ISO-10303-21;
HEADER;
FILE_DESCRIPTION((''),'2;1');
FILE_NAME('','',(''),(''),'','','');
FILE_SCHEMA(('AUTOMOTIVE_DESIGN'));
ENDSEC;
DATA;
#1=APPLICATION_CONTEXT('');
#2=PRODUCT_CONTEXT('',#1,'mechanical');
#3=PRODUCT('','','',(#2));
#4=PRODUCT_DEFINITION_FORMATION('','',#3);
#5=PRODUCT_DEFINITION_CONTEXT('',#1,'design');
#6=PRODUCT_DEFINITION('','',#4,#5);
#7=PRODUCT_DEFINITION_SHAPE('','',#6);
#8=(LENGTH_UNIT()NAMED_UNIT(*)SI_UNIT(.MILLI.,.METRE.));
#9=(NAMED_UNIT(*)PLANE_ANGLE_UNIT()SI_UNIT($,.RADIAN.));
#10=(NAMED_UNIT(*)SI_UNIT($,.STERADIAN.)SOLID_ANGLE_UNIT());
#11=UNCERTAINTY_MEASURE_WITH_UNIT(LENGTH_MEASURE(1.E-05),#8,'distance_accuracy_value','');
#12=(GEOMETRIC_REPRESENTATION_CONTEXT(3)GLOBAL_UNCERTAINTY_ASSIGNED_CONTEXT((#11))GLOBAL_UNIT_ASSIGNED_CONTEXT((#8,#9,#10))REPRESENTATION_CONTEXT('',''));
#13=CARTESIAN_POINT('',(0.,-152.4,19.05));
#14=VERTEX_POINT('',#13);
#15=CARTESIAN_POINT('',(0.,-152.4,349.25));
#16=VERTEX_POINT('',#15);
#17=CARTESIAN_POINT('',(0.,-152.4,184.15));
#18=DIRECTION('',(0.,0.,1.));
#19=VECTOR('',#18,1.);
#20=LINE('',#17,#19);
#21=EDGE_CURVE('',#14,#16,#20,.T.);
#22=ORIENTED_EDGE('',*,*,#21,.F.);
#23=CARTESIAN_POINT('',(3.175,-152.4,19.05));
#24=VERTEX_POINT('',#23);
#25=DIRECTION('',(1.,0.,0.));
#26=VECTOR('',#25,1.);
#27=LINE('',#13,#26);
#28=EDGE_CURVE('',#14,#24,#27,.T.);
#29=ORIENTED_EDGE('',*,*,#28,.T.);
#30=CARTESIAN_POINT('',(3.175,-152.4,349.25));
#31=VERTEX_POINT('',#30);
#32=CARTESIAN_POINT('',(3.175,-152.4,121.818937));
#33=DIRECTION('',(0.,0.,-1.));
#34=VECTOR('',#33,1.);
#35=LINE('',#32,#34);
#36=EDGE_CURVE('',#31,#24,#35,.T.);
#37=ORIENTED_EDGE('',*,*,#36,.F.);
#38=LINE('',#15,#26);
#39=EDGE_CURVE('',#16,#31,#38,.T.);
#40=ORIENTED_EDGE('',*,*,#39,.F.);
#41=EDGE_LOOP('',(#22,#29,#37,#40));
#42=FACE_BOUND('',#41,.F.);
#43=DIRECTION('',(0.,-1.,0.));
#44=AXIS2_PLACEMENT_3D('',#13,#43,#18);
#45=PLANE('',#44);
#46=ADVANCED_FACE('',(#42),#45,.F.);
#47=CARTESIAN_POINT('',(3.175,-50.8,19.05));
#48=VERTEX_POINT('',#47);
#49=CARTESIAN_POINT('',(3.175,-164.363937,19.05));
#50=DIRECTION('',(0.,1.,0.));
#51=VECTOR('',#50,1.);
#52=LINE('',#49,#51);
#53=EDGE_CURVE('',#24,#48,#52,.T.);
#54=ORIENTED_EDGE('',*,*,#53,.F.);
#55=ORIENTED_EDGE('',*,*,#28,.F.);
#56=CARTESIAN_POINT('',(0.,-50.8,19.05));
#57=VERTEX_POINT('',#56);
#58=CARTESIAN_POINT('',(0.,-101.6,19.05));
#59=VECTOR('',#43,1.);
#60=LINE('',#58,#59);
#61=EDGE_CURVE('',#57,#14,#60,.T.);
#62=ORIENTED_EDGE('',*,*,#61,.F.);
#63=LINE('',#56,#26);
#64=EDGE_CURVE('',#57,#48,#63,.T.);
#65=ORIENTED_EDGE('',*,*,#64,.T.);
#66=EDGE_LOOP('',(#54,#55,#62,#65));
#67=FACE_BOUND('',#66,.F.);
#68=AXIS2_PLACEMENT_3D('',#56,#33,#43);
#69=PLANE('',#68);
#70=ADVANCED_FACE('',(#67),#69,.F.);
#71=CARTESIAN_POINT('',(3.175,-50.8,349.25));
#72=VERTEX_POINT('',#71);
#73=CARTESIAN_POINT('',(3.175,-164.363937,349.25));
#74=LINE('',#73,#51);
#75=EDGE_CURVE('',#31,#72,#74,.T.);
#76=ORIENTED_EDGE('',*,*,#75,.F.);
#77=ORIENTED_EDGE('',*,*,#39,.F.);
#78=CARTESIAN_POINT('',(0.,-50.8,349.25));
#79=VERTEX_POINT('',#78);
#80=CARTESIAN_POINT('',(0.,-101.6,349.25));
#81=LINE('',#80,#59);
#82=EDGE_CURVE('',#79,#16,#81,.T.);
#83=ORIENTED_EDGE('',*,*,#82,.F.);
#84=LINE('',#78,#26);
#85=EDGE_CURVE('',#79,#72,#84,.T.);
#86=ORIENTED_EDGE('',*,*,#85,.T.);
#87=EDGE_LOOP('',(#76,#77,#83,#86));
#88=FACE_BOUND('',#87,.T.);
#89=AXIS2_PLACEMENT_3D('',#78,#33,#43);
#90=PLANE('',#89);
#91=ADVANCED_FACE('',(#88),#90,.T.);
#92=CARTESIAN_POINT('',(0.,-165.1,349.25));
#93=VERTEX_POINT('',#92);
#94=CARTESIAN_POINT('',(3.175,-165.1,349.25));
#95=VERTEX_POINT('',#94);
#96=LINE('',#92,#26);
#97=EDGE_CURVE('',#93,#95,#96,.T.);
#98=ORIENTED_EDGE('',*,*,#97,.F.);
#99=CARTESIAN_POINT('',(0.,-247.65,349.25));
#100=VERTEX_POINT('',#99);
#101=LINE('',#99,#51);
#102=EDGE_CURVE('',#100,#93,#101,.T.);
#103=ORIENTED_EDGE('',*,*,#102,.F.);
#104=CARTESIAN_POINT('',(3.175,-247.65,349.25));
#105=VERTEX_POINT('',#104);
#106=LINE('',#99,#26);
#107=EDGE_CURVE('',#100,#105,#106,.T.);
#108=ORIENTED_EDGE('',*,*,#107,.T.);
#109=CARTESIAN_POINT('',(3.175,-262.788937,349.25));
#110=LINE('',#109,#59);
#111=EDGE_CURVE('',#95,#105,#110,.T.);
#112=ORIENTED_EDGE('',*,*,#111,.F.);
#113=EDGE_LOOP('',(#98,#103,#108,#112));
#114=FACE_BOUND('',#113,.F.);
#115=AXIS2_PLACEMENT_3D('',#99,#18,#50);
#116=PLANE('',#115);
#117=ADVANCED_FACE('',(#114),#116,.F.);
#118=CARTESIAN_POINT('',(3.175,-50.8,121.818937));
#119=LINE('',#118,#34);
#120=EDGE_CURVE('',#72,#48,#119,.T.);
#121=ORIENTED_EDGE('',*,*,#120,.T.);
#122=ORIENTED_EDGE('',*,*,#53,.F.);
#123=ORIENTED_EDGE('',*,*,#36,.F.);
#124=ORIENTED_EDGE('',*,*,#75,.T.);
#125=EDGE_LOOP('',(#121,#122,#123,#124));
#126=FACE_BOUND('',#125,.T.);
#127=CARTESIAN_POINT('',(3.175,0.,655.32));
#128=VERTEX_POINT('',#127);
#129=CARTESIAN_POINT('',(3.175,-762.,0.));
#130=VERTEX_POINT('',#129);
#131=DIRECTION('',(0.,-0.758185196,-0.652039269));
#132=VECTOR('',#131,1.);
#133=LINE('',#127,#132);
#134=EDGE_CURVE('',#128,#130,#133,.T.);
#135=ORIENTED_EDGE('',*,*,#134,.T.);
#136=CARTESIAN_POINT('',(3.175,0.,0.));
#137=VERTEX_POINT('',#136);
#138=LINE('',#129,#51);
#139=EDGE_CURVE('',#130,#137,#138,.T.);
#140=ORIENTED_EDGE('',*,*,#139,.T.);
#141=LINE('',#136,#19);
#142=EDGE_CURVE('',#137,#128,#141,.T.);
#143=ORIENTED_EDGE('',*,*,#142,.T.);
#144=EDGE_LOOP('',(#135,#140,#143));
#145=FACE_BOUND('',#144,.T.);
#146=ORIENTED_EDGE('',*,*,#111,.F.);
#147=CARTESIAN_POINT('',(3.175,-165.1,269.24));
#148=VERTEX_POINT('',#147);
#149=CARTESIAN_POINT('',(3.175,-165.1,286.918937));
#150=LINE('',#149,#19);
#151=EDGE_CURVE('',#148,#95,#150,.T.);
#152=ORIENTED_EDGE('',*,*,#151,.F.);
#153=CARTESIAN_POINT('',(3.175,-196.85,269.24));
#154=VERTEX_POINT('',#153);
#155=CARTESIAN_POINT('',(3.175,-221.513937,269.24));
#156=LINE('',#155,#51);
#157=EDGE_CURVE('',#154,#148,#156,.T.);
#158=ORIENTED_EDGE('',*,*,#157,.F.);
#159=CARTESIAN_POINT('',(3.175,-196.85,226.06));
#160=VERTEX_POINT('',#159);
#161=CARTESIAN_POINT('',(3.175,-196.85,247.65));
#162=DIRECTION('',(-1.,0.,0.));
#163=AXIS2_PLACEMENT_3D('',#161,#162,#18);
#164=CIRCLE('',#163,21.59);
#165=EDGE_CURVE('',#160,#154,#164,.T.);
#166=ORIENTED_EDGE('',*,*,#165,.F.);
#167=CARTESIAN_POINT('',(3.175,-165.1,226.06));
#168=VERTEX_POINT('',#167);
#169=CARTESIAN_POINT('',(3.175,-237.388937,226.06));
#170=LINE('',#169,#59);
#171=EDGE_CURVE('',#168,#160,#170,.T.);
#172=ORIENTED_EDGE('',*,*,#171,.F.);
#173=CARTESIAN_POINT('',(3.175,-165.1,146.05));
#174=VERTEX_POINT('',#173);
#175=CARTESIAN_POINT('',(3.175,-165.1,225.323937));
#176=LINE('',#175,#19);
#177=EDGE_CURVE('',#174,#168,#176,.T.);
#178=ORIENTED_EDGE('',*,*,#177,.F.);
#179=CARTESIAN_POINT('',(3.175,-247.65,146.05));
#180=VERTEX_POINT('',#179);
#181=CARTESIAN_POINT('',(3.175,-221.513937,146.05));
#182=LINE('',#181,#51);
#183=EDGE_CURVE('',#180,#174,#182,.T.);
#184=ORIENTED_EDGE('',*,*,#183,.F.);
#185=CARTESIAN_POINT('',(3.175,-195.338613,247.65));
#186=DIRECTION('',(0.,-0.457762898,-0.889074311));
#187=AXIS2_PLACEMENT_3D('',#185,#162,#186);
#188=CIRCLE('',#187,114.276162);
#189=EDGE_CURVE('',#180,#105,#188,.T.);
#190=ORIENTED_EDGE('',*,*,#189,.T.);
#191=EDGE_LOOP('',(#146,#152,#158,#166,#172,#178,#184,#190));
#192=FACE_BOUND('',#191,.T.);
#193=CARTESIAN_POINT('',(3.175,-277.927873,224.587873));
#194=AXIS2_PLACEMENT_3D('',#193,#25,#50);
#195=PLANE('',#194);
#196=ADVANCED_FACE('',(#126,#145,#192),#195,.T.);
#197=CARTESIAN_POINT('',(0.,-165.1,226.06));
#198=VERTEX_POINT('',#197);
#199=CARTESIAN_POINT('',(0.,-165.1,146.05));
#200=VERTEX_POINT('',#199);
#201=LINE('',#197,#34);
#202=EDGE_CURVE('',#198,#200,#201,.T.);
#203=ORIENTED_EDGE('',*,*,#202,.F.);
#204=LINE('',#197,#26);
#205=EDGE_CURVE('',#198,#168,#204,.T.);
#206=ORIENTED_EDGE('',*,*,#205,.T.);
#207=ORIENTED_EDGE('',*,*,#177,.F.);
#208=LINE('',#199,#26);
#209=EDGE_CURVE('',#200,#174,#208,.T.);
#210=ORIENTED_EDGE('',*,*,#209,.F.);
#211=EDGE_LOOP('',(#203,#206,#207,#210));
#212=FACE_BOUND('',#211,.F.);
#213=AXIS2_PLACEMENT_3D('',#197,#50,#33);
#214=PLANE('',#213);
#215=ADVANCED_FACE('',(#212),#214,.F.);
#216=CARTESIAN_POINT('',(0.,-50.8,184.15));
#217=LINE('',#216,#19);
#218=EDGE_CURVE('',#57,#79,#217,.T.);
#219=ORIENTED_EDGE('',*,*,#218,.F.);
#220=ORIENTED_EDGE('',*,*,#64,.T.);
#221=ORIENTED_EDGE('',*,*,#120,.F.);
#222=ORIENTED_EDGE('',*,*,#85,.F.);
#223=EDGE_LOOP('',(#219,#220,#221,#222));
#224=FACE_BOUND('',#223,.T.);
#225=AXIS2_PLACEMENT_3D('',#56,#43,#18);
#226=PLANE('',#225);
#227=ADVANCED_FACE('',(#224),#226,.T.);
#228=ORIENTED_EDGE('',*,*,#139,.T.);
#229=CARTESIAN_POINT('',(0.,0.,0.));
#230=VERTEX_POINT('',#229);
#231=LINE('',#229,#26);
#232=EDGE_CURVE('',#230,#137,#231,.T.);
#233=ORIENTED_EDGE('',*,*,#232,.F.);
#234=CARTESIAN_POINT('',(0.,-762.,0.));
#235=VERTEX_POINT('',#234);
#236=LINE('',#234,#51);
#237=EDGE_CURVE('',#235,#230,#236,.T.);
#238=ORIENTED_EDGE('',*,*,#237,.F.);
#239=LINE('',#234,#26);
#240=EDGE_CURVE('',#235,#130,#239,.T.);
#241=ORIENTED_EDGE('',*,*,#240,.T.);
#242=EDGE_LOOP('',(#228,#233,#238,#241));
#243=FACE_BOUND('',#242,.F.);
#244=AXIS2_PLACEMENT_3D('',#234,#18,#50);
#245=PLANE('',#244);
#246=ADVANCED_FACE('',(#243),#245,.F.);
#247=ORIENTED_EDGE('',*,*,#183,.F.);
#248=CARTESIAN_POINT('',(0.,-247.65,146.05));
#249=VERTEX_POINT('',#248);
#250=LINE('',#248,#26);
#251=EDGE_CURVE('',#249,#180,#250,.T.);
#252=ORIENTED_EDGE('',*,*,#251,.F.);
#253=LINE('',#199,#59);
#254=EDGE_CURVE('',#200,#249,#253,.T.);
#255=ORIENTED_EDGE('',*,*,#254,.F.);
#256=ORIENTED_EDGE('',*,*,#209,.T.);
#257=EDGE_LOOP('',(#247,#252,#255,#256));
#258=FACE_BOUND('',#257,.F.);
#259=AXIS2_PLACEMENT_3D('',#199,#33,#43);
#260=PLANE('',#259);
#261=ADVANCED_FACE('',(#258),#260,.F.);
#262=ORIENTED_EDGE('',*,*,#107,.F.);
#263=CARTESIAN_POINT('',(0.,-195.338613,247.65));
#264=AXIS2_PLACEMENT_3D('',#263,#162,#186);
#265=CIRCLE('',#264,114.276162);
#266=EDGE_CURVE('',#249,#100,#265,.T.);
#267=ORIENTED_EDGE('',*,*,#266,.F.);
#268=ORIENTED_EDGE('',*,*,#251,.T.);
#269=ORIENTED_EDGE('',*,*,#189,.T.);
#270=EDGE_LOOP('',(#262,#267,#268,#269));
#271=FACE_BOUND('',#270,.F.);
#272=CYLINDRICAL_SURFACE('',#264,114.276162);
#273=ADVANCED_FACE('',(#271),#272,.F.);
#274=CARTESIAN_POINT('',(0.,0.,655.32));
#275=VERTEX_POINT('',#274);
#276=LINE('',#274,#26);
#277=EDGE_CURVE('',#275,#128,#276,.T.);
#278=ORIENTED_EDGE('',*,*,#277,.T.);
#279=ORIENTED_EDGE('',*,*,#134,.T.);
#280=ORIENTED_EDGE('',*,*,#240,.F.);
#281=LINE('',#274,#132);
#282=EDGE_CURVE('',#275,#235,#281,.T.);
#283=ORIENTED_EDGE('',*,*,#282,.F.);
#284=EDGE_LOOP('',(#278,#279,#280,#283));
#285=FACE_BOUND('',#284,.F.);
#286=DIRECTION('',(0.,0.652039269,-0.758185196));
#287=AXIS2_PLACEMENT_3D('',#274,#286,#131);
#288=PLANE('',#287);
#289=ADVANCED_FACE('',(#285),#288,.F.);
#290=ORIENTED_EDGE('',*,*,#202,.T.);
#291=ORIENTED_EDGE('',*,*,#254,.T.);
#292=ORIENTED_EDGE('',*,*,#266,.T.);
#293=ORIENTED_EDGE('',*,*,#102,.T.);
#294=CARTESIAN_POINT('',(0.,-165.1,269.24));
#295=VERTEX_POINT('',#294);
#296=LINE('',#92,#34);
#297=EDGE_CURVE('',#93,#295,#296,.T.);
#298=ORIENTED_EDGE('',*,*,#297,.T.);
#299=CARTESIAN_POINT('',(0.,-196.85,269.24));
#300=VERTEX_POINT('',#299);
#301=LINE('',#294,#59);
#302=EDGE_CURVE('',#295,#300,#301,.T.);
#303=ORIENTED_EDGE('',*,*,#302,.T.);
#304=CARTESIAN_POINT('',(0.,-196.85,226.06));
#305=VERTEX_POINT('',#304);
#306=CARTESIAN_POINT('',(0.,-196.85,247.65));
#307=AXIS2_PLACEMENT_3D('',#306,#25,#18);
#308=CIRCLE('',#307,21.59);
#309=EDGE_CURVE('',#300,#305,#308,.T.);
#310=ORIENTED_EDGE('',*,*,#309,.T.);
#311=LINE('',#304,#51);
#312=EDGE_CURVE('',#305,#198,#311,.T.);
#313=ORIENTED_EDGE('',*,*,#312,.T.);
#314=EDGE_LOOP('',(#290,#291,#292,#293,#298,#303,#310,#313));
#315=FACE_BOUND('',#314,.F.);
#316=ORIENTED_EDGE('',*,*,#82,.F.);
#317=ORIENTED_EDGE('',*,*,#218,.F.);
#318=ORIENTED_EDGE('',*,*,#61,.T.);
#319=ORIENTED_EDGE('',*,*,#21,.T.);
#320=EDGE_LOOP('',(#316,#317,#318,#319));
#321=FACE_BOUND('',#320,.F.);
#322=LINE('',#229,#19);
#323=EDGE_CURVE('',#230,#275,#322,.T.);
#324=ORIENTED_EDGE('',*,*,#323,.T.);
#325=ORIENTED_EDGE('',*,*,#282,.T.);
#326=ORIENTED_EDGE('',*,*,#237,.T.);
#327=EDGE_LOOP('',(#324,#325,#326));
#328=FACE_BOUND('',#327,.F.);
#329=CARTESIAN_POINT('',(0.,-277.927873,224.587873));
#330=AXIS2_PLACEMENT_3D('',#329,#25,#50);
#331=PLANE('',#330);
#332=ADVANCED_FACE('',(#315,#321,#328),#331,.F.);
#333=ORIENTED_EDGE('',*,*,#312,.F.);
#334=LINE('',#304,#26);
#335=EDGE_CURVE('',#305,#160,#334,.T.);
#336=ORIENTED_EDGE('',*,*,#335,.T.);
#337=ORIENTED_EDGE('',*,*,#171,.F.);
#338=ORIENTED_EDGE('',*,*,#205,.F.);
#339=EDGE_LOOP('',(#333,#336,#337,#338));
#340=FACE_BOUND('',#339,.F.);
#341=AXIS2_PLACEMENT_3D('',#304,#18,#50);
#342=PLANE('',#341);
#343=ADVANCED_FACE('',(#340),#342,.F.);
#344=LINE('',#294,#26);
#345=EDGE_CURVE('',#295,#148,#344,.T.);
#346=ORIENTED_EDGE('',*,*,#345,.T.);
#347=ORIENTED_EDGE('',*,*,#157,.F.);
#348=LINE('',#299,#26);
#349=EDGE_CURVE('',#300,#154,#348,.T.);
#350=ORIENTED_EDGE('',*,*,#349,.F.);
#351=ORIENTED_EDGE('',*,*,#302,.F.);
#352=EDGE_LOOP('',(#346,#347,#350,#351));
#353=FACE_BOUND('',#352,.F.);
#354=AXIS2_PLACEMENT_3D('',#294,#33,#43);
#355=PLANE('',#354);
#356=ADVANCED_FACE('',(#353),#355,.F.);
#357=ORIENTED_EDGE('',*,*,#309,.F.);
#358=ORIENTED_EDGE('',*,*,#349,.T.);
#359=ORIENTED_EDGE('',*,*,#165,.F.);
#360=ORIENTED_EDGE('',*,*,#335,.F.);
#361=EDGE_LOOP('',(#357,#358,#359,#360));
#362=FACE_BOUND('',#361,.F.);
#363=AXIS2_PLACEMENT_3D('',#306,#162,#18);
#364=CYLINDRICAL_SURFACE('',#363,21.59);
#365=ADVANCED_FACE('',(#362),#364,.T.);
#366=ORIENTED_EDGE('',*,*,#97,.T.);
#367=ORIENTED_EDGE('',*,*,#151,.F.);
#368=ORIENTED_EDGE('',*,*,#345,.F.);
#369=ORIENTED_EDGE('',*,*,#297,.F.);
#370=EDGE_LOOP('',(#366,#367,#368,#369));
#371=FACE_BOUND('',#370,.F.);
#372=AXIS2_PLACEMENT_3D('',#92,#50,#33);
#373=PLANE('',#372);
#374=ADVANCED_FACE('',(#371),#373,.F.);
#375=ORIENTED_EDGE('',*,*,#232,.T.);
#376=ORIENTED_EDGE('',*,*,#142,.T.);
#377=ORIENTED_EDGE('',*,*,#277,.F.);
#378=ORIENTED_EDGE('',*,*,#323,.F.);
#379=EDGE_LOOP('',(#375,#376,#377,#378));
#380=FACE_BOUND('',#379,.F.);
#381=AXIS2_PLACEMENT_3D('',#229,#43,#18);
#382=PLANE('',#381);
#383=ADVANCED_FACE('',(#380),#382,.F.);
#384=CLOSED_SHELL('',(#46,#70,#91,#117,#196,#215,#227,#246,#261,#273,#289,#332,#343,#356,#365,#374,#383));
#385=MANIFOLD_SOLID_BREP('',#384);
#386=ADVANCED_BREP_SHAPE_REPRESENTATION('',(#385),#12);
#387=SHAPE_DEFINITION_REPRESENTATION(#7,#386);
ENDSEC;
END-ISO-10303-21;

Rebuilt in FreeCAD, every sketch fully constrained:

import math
import FreeCAD as App
import Part
import Sketcher
from FreeCAD import Vector
Q = App.Units.Quantity


def add_polygon(sketch, points):
    """Adds a closed chain of lines whose ends are joined by coincident constraints."""
    first, n = sketch.GeometryCount, len(points)
    for a, b in zip(points, points[1:] + points[:1]):
        sketch.addGeometry(Part.LineSegment(App.Vector(*a, 0), App.Vector(*b, 0)), False)
    for i in range(n):
        sketch.addConstraint(Sketcher.Constraint("Coincident", first + i, 2, first + (i + 1) % n, 1))

doc = App.newDocument("Part")
body = doc.addObject("PartDesign::Body", "Body")

sketch1 = body.newObject("Sketcher::SketchObject", "Sketch")
sketch1.AttachmentSupport = (doc.getObject("YZ_Plane"), [""])
sketch1.MapMode = "FlatFace"
add_polygon(sketch1, [(-762, 0), (0, 0), (0, 655.32)])
sketch1.addConstraint([
    Sketcher.Constraint("Horizontal", 0),
    Sketcher.Constraint("Vertical", 1),
    Sketcher.Constraint("Coincident", 0, 2, -1, 1),
    Sketcher.Constraint("DistanceX", 0, 1, 0, 2, Q("30 in")),
    Sketcher.Constraint("DistanceY", 1, 1, 1, 2, Q("25.8 in")),
])
pad1 = body.newObject("PartDesign::Pad", "Pad")
pad1.Profile = sketch1
pad1.Length = Q("0.125 in")

sketch2 = body.newObject("Sketcher::SketchObject", "Sketch001")
sketch2.AttachmentSupport = (doc.getObject("YZ_Plane"), [""])
sketch2.MapMode = "FlatFace"
sketch2.addGeometry(Part.LineSegment(Vector(-165.1, 146.05, 0), Vector(-247.65, 146.05, 0)), False)
sketch2.addGeometry(Part.ArcOfCircle(Part.Circle(Vector(-195.338613, 247.65, 0), Vector(0, 0, 1), 114.276162), math.radians(117.242845), math.radians(242.757155)), False)
sketch2.addGeometry(Part.LineSegment(Vector(-247.65, 349.25, 0), Vector(-165.1, 349.25, 0)), False)
sketch2.addGeometry(Part.LineSegment(Vector(-165.1, 349.25, 0), Vector(-165.1, 269.24, 0)), False)
sketch2.addGeometry(Part.LineSegment(Vector(-165.1, 269.24, 0), Vector(-196.85, 269.24, 0)), False)
sketch2.addGeometry(Part.ArcOfCircle(Part.Circle(Vector(-196.85, 247.65, 0), Vector(0, 0, 1), 21.59), math.radians(90), math.radians(270)), False)
sketch2.addGeometry(Part.LineSegment(Vector(-196.85, 226.06, 0), Vector(-165.1, 226.06, 0)), False)
sketch2.addGeometry(Part.LineSegment(Vector(-165.1, 226.06, 0), Vector(-165.1, 146.05, 0)), False)
add_polygon(sketch2, [(-50.8, 349.25), (-50.8, 19.05), (-152.4, 19.05), (-152.4, 349.25)])
sketch2.addConstraint([
    Sketcher.Constraint("Coincident", 0, 2, 1, 2),
    Sketcher.Constraint("Coincident", 1, 1, 2, 1),
    Sketcher.Constraint("Coincident", 2, 2, 3, 1),
    Sketcher.Constraint("Coincident", 3, 2, 4, 1),
    Sketcher.Constraint("Tangent", 4, 2, 5, 1),
    Sketcher.Constraint("Tangent", 5, 2, 6, 1),
    Sketcher.Constraint("Coincident", 6, 2, 7, 1),
    Sketcher.Constraint("Coincident", 7, 2, 0, 1),
    Sketcher.Constraint("Horizontal", 0),
    Sketcher.Constraint("Horizontal", 2),
    Sketcher.Constraint("Vertical", 3),
    Sketcher.Constraint("Horizontal", 4),
    Sketcher.Constraint("Horizontal", 6),
    Sketcher.Constraint("Vertical", 7),
    Sketcher.Constraint("Vertical", 8),
    Sketcher.Constraint("Horizontal", 9),
    Sketcher.Constraint("Vertical", 10),
    Sketcher.Constraint("Horizontal", 11),
    Sketcher.Constraint("Horizontal", 1, 3, 5, 3),
    Sketcher.Constraint("Horizontal", 2, 2, 10, 2),
    Sketcher.Constraint("Vertical", 0, 2, 1, 1),
    Sketcher.Constraint("Vertical", 3, 2, 6, 2),
    Sketcher.Constraint("DistanceX", 9, 2, 9, 1, Q("4 in")),
    Sketcher.Constraint("DistanceY", 8, 2, 8, 1, Q("13 in")),
    Sketcher.Constraint("Radius", 5, Q("0.85 in")),
    Sketcher.Constraint("DistanceX", 8, 2, -1, 1, Q("2 in")),
    Sketcher.Constraint("DistanceX", 0, 2, 5, 3, Q("2 in")),
    Sketcher.Constraint("DistanceY", 0, 2, 5, 3, Q("4 in")),
    Sketcher.Constraint("DistanceX", 0, 2, 0, 1, Q("3.25 in")),
    Sketcher.Constraint("DistanceX", 2, 2, -1, 1, Q("6.5 in")),
    Sketcher.Constraint("DistanceY", -1, 1, 3, 2, Q("10.6 in")),
    Sketcher.Constraint("Radius", 1, Q("114.276162 mm")),
])
pocket1 = body.newObject("PartDesign::Pocket", "Pocket")
pocket1.Profile = sketch2
pocket1.Length = Q("1 in")
pocket1.Reversed = True

doc.recompute()
